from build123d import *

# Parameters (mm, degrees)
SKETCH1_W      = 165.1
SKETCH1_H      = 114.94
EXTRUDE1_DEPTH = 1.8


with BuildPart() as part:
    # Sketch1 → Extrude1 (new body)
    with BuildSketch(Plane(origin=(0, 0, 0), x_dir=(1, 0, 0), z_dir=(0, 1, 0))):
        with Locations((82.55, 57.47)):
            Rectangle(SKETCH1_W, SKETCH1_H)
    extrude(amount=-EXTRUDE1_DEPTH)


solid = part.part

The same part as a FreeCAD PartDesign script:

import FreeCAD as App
import Part
import Sketcher


def add_polygon(sketch, points):
    """Adds a closed chain of lines whose ends are joined by coincident constraints."""
    first, n = sketch.GeometryCount, len(points)
    for a, b in zip(points, points[1:] + points[:1]):
        sketch.addGeometry(Part.LineSegment(App.Vector(*a, 0), App.Vector(*b, 0)), False)
    for i in range(n):
        sketch.addConstraint(Sketcher.Constraint("Coincident", first + i, 2, first + (i + 1) % n, 1))

doc = App.newDocument("Part")
body = doc.addObject("PartDesign::Body", "Body")

sketch1 = body.newObject("Sketcher::SketchObject", "Sketch")
sketch1.AttachmentSupport = (doc.getObject("XZ_Plane"), [""])
sketch1.MapMode = "FlatFace"
add_polygon(sketch1, [(0, -114.94), (0, 0), (165.1, 0), (165.1, -114.94)])
sketch1.addConstraint([
    Sketcher.Constraint("Vertical", 0),
    Sketcher.Constraint("Horizontal", 1),
    Sketcher.Constraint("Vertical", 2),
    Sketcher.Constraint("Horizontal", 3),
    Sketcher.Constraint("Coincident", 0, 2, -1, 1),
    Sketcher.Constraint("DistanceX", 1, 1, 1, 2, 165.1),
    Sketcher.Constraint("DistanceY", 0, 1, 0, 2, 114.94),
])
pad1 = body.newObject("PartDesign::Pad", "Pad")
pad1.Profile = sketch1
pad1.Length = 1.8

doc.recompute()
